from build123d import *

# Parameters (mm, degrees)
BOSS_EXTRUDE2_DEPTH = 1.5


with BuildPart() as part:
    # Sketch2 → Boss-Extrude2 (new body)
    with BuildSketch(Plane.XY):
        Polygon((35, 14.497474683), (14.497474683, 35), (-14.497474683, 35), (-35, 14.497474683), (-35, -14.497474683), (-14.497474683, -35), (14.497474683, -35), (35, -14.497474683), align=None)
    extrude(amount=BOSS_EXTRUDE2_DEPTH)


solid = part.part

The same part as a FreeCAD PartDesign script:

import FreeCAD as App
import Part
import Sketcher
from FreeCAD import Vector
Q = App.Units.Quantity

doc = App.newDocument("Part")
body = doc.addObject("PartDesign::Body", "Body")

# Sketch on XY plane
sketch1 = body.newObject("Sketcher::SketchObject", "Sketch")
sketch1.AttachmentSupport = (doc.getObject("XY_Plane"), [""])
sketch1.MapMode = "FlatFace"
sketch1.addGeometry(Part.LineSegment(Vector(35, 14, 0), Vector(14, 35, 0)), False)
sketch1.addGeometry(Part.LineSegment(Vector(14, 35, 0), Vector(-14, 35, 0)), False)
sketch1.addGeometry(Part.LineSegment(Vector(-14, 35, 0), Vector(-35, 14, 0)), False)
sketch1.addGeometry(Part.LineSegment(Vector(-35, 14, 0), Vector(-35, -14, 0)), False)
sketch1.addGeometry(Part.LineSegment(Vector(-35, -14, 0), Vector(-14, -35, 0)), False)
sketch1.addGeometry(Part.LineSegment(Vector(-14, -35, 0), Vector(14, -35, 0)), False)
sketch1.addGeometry(Part.LineSegment(Vector(14, -35, 0), Vector(35, -14, 0)), False)
sketch1.addGeometry(Part.LineSegment(Vector(35, -14, 0), Vector(35, 14, 0)), False)
sketch1.addConstraint(Sketcher.Constraint("Coincident", 0, 2, 1, 1))
sketch1.addConstraint(Sketcher.Constraint("Coincident", 1, 2, 2, 1))
sketch1.addConstraint(Sketcher.Constraint("Coincident", 2, 2, 3, 1))
sketch1.addConstraint(Sketcher.Constraint("Coincident", 3, 2, 4, 1))
sketch1.addConstraint(Sketcher.Constraint("Coincident", 4, 2, 5, 1))
sketch1.addConstraint(Sketcher.Constraint("Coincident", 5, 2, 6, 1))
sketch1.addConstraint(Sketcher.Constraint("Coincident", 6, 2, 7, 1))
sketch1.addConstraint(Sketcher.Constraint("Coincident", 7, 2, 0, 1))
sketch1.addConstraint(Sketcher.Constraint("Horizontal", 1))
sketch1.addConstraint(Sketcher.Constraint("Vertical", 3))
sketch1.addConstraint(Sketcher.Constraint("Horizontal", 5))
sketch1.addConstraint(Sketcher.Constraint("Vertical", 7))
sketch1.addConstraint(Sketcher.Constraint("Symmetric", 0, 2, 4, 2, -1, 1))
sketch1.addConstraint(Sketcher.Constraint("Symmetric", 2, 2, 6, 2, -1, 1))
sketch1.addConstraint(Sketcher.Constraint("Perpendicular", 0, 2))
sketch1.addConstraint(Sketcher.Constraint("Perpendicular", 2, 4))
sketch1.addConstraint(Sketcher.Constraint("Perpendicular", 4, 6))
sketch1.addConstraint(Sketcher.Constraint("Horizontal", 3, 2, 6, 2))
sketch1.addConstraint(Sketcher.Constraint("Vertical", 1, 2, 4, 2))
sketch1.addConstraint(Sketcher.Constraint("Equal", 5, 3))
sketch1.addConstraint(Sketcher.Constraint("DistanceY", -1, 1, 0, 2, Q("35 mm")))
sketch1.addConstraint(Sketcher.Constraint("DistanceX", 1, 2, 1, 1, Q("28.994949 mm")))
pad1 = body.newObject("PartDesign::Pad", "Pad")
pad1.Profile = sketch1
pad1.Length = 1.5

doc.recompute()
